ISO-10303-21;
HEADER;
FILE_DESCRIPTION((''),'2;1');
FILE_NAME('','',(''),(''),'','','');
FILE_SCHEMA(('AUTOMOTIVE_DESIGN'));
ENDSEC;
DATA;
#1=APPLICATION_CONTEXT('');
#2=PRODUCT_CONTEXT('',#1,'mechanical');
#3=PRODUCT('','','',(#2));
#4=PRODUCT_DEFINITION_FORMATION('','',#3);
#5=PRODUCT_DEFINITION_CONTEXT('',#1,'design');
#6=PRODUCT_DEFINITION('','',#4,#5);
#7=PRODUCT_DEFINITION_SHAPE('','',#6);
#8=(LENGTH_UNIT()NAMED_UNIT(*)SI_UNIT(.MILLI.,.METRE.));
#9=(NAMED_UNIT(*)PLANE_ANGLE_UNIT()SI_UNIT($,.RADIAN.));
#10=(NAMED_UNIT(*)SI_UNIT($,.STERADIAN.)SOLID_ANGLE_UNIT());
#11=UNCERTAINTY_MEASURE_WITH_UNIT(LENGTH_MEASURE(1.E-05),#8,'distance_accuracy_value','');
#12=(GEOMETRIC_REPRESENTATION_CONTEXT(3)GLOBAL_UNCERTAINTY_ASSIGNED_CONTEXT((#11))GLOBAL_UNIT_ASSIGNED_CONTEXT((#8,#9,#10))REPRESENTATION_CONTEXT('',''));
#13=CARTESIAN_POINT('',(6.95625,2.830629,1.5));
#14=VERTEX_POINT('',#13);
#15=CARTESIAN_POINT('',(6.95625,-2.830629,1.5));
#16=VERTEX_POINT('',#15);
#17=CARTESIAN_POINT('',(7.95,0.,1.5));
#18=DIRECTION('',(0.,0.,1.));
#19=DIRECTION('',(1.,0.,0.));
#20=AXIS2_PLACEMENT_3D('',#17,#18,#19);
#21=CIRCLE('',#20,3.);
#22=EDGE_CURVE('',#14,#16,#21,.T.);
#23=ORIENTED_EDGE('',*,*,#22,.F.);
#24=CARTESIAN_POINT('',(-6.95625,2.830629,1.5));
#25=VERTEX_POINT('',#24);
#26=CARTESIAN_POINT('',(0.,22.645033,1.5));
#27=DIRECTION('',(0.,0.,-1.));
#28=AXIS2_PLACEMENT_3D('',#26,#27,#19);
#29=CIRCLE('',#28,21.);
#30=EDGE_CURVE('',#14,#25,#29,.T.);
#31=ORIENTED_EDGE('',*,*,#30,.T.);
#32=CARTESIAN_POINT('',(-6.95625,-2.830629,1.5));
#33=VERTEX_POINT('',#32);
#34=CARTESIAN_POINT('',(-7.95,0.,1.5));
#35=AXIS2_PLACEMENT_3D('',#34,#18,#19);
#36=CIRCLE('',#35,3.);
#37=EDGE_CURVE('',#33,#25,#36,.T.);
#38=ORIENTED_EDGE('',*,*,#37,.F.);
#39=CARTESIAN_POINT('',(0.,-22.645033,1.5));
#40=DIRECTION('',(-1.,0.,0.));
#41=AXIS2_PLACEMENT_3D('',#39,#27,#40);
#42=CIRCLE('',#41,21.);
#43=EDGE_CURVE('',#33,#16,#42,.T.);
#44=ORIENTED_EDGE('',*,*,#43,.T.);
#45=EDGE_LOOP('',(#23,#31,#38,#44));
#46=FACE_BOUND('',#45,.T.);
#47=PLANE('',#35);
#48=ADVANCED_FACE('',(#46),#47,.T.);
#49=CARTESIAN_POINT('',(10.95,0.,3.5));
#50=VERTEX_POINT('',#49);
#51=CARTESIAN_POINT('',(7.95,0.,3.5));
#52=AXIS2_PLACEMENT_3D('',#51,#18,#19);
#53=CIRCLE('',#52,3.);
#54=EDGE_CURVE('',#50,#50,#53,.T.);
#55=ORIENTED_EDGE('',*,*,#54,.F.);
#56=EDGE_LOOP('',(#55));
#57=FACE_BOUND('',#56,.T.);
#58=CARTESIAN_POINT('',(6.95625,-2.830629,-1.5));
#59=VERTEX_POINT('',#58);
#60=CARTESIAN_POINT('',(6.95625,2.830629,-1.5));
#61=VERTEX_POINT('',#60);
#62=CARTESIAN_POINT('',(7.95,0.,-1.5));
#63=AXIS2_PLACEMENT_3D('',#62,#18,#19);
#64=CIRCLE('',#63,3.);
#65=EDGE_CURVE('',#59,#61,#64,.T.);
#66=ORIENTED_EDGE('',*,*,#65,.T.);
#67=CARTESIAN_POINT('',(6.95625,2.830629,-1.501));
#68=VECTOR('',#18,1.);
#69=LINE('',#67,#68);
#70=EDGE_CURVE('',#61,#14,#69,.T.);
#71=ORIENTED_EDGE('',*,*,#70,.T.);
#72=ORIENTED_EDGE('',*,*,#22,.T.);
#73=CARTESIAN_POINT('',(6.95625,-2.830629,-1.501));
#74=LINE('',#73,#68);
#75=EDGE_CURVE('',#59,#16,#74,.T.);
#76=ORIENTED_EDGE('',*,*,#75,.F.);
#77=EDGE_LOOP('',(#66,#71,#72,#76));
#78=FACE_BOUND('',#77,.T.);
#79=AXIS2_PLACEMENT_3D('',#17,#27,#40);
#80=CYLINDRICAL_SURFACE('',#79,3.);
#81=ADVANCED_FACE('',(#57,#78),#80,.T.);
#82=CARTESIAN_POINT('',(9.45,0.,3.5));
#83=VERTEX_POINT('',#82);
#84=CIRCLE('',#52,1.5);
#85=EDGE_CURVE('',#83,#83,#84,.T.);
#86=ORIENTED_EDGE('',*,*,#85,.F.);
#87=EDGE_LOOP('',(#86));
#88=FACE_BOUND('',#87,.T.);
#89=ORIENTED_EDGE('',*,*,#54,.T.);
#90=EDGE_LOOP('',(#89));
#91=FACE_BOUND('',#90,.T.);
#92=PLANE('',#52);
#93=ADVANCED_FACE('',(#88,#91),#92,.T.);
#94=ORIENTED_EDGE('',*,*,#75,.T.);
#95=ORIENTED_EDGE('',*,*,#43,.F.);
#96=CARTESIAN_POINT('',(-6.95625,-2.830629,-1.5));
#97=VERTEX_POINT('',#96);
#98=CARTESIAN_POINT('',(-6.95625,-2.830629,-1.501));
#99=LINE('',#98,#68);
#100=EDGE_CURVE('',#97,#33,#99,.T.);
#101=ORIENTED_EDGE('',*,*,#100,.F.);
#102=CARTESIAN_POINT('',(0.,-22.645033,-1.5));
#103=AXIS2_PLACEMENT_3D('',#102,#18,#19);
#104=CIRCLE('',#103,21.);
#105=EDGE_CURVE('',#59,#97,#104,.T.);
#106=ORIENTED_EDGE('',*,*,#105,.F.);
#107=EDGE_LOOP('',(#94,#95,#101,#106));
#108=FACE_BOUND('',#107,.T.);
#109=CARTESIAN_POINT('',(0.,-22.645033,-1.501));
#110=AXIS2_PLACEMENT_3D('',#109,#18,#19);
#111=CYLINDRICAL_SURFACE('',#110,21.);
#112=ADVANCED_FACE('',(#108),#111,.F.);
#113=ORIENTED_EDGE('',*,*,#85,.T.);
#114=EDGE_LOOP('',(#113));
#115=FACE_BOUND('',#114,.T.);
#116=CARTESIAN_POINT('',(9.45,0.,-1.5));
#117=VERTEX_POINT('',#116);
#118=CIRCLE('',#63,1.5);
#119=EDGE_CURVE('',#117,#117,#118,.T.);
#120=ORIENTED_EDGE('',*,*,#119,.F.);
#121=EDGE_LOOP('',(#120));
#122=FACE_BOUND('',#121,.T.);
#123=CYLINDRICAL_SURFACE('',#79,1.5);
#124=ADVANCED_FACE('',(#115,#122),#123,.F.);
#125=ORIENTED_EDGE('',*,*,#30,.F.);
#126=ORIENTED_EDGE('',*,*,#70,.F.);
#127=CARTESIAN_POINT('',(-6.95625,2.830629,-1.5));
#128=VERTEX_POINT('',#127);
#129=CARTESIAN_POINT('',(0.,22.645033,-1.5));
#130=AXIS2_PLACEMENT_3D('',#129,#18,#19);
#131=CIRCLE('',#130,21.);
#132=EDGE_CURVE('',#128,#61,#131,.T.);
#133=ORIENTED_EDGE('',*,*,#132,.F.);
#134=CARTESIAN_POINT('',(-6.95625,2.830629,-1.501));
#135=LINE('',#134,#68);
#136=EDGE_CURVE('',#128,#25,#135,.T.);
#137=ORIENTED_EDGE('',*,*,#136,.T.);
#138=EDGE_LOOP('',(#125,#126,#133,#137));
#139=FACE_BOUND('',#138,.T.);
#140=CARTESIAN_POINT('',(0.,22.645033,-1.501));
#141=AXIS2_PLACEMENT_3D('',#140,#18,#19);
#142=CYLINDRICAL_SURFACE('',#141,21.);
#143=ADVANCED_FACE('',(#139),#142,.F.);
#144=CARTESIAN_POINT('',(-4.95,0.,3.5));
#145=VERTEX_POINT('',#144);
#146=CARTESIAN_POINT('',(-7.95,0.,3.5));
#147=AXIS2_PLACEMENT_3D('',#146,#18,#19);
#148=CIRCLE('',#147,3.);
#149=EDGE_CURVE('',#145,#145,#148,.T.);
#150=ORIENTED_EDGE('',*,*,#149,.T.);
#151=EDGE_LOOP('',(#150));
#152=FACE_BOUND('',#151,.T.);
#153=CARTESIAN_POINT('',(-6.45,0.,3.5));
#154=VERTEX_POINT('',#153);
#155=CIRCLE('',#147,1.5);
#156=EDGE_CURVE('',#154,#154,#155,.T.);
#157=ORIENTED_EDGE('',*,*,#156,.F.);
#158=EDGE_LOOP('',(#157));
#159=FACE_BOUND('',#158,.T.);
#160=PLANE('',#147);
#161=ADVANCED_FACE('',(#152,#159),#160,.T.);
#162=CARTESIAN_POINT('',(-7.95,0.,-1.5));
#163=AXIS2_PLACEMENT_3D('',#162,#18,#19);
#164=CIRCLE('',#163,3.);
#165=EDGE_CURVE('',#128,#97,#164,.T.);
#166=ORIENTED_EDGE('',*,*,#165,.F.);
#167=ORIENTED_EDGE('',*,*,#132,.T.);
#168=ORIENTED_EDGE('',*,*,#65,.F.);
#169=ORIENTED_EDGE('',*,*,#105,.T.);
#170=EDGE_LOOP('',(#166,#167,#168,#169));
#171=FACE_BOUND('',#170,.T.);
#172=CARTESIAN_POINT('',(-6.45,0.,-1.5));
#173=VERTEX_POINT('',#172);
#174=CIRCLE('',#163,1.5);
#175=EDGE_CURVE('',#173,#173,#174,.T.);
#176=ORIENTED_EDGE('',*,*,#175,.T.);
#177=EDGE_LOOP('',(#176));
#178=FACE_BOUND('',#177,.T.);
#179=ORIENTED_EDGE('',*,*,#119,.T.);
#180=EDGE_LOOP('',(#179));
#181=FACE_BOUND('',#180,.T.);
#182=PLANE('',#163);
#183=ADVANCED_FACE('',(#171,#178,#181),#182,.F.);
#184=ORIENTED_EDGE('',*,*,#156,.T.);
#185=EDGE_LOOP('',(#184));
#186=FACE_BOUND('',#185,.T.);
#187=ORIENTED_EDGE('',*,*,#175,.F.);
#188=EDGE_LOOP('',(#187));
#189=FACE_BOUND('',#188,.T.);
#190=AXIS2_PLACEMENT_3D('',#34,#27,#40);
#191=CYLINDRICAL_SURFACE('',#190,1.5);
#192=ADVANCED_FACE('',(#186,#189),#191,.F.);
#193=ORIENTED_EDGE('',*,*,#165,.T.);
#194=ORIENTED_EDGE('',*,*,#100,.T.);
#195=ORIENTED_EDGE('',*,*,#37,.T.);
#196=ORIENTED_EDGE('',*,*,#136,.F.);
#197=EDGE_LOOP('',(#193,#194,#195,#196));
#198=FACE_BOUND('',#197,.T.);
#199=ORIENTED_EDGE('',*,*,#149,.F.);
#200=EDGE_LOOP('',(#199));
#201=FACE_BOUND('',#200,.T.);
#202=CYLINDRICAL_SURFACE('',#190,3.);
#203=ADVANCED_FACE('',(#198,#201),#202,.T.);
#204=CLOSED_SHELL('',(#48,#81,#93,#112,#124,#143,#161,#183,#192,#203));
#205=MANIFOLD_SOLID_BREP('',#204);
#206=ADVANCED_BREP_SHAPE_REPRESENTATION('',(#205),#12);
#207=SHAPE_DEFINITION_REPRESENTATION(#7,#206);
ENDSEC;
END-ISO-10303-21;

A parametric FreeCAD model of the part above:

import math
import FreeCAD as App
import Part
import Sketcher

doc = App.newDocument("Part")
body = doc.addObject("PartDesign::Body", "Body")

sketch1 = body.newObject("Sketcher::SketchObject", "Sketch")
sketch1.AttachmentSupport = (doc.getObject("XY_Plane"), [""])
sketch1.MapMode = "FlatFace"
sketch1.addGeometry(Part.LineSegment(App.Vector(8, 3, 0), App.Vector(-8, 3, 0)), False)
sketch1.addGeometry(Part.ArcOfCircle(Part.Circle(App.Vector(-8, 0, 0), App.Vector(0, 0, 1), 3), math.radians(90), math.radians(270)), False)
sketch1.addGeometry(Part.LineSegment(App.Vector(-8, -3, 0), App.Vector(8, -3, 0)), False)
sketch1.addGeometry(Part.ArcOfCircle(Part.Circle(App.Vector(8, 0, 0), App.Vector(0, 0, 1), 3), math.radians(-90), math.radians(90)), False)
sketch1.addGeometry(Part.Circle(App.Vector(8, 0, 0), App.Vector(0, 0, 1), 1.5), False)
sketch1.addGeometry(Part.Circle(App.Vector(-8, 0, 0), App.Vector(0, 0, 1), 1.5), False)
sketch1.addConstraint(Sketcher.Constraint("Tangent", 0, 2, 1, 1))
sketch1.addConstraint(Sketcher.Constraint("Tangent", 1, 2, 2, 1))
sketch1.addConstraint(Sketcher.Constraint("Tangent", 2, 2, 3, 1))
sketch1.addConstraint(Sketcher.Constraint("Tangent", 3, 2, 0, 1))
sketch1.addConstraint(Sketcher.Constraint("Horizontal", 0))
sketch1.addConstraint(Sketcher.Constraint("Horizontal", 2))
sketch1.addConstraint(Sketcher.Constraint("Coincident", 4, 3, 3, 3))
sketch1.addConstraint(Sketcher.Constraint("Coincident", 5, 3, 1, 3))
sketch1.addConstraint(Sketcher.Constraint("Equal", 4, 5))
sketch1.addConstraint(Sketcher.Constraint("Symmetric", 1, 3, 3, 3, -1, 1))
sketch1.addConstraint(Sketcher.Constraint("Diameter", 4, 3.0))
sketch1.addConstraint(Sketcher.Constraint("Radius", 1, 3.0))
sketch1.addConstraint(Sketcher.Constraint("DistanceX", 0, 2, 0, 1, 15.9))
pad1 = body.newObject("PartDesign::Pad", "Pad")
pad1.Profile = sketch1
pad1.Length = 3
pad1.Midplane = True

sketch2 = body.newObject("Sketcher::SketchObject", "Sketch001")
sketch2.AttachmentSupport = (doc.getObject("XY_Plane"), [""])
sketch2.MapMode = "FlatFace"
sketch2.AttachmentOffset = App.Placement(App.Vector(0, 0, 1.5), App.Rotation())
sketch2.addGeometry(Part.LineSegment(App.Vector(-14.2, 6.3, 0), App.Vector(-14.2, -6.3, 0)), False)
sketch2.addGeometry(Part.LineSegment(App.Vector(-14.2, -6.3, 0), App.Vector(14.2, -6.3, 0)), False)
sketch2.addGeometry(Part.LineSegment(App.Vector(14.2, -6.3, 0), App.Vector(14.2, 6.3, 0)), False)
sketch2.addGeometry(Part.LineSegment(App.Vector(14.2, 6.3, 0), App.Vector(-14.2, 6.3, 0)), False)
sketch2.addGeometry(Part.ArcOfCircle(Part.Circle(App.Vector(-8, 0, 0), App.Vector(0, 0, 1), 3), math.radians(71), math.radians(289)), False)
sketch2.addGeometry(Part.ArcOfCircle(Part.Circle(App.Vector(0, 22.6, 0), App.Vector(0, 0, 1), 21), math.radians(-109), math.radians(-71)), False)
sketch2.addGeometry(Part.ArcOfCircle(Part.Circle(App.Vector(8, 0, 0), App.Vector(0, 0, 1), 3), math.radians(-109), math.radians(109)), False)
sketch2.addGeometry(Part.ArcOfCircle(Part.Circle(App.Vector(0, -22.6, 0), App.Vector(0, 0, 1), 21), math.radians(71), math.radians(109)), False)
sketch2.addConstraint(Sketcher.Constraint("Coincident", 0, 2, 1, 1))
sketch2.addConstraint(Sketcher.Constraint("Coincident", 1, 2, 2, 1))
sketch2.addConstraint(Sketcher.Constraint("Coincident", 2, 2, 3, 1))
sketch2.addConstraint(Sketcher.Constraint("Coincident", 3, 2, 0, 1))
sketch2.addConstraint(Sketcher.Constraint("Tangent", 4, 1, 5, 1))
sketch2.addConstraint(Sketcher.Constraint("Tangent", 5, 2, 6, 2))
sketch2.addConstraint(Sketcher.Constraint("Tangent", 6, 1, 7, 1))
sketch2.addConstraint(Sketcher.Constraint("Tangent", 7, 2, 4, 2))
sketch2.addConstraint(Sketcher.Constraint("Vertical", 0))
sketch2.addConstraint(Sketcher.Constraint("Horizontal", 1))
sketch2.addConstraint(Sketcher.Constraint("Vertical", 2))
sketch2.addConstraint(Sketcher.Constraint("Horizontal", 3))
sketch2.addConstraint(Sketcher.Constraint("Equal", 4, 6))
sketch2.addConstraint(Sketcher.Constraint("Equal", 5, 7))
sketch2.addConstraint(Sketcher.Constraint("Symmetric", 4, 3, 6, 3, -1, 1))
sketch2.addConstraint(Sketcher.Constraint("Symmetric", 0, 2, 2, 2, -1, 1))
sketch2.addConstraint(Sketcher.Constraint("PointOnObject", 4, 3, -1))
sketch2.addConstraint(Sketcher.Constraint("Radius", 4, 3.0))
sketch2.addConstraint(Sketcher.Constraint("Radius", 5, 21.0))
sketch2.addConstraint(Sketcher.Constraint("DistanceX", 1, 1, 1, 2, 28.48))
sketch2.addConstraint(Sketcher.Constraint("DistanceY", 0, 2, 0, 1, 12.58))
sketch2.addConstraint(Sketcher.Constraint("DistanceX", 4, 3, 6, 3, 15.9))
pocket1 = body.newObject("PartDesign::Pocket", "Pocket")
pocket1.Profile = sketch2
pocket1.Length = 3

sketch3 = body.newObject("Sketcher::SketchObject", "Sketch002")
sketch3.AttachmentSupport = (doc.getObject("XY_Plane"), [""])
sketch3.MapMode = "FlatFace"
sketch3.AttachmentOffset = App.Placement(App.Vector(0, 0, 3.5), App.Rotation())
sketch3.addGeometry(Part.Circle(App.Vector(-8, 0, 0), App.Vector(0, 0, 1), 3), False)
sketch3.addGeometry(Part.Circle(App.Vector(-8, 0, 0), App.Vector(0, 0, 1), 1.5), False)
sketch3.addGeometry(Part.Circle(App.Vector(8, 0, 0), App.Vector(0, 0, 1), 3), False)
sketch3.addGeometry(Part.Circle(App.Vector(8, 0, 0), App.Vector(0, 0, 1), 1.5), False)
sketch3.addConstraint(Sketcher.Constraint("Coincident", 1, 3, 0, 3))
sketch3.addConstraint(Sketcher.Constraint("Coincident", 3, 3, 2, 3))
sketch3.addConstraint(Sketcher.Constraint("Equal", 0, 2))
sketch3.addConstraint(Sketcher.Constraint("Equal", 1, 3))
sketch3.addConstraint(Sketcher.Constraint("Symmetric", 0, 3, 2, 3, -1, 1))
sketch3.addConstraint(Sketcher.Constraint("PointOnObject", 0, 3, -1))
sketch3.addConstraint(Sketcher.Constraint("Diameter", 0, 6.0))
sketch3.addConstraint(Sketcher.Constraint("Diameter", 1, 3.0))
sketch3.addConstraint(Sketcher.Constraint("DistanceX", 0, 3, 2, 3, 15.9))
pad2 = body.newObject("PartDesign::Pad", "Pad001")
pad2.Profile = sketch3
pad2.Length = 2
pad2.Reversed = True

doc.recompute()
